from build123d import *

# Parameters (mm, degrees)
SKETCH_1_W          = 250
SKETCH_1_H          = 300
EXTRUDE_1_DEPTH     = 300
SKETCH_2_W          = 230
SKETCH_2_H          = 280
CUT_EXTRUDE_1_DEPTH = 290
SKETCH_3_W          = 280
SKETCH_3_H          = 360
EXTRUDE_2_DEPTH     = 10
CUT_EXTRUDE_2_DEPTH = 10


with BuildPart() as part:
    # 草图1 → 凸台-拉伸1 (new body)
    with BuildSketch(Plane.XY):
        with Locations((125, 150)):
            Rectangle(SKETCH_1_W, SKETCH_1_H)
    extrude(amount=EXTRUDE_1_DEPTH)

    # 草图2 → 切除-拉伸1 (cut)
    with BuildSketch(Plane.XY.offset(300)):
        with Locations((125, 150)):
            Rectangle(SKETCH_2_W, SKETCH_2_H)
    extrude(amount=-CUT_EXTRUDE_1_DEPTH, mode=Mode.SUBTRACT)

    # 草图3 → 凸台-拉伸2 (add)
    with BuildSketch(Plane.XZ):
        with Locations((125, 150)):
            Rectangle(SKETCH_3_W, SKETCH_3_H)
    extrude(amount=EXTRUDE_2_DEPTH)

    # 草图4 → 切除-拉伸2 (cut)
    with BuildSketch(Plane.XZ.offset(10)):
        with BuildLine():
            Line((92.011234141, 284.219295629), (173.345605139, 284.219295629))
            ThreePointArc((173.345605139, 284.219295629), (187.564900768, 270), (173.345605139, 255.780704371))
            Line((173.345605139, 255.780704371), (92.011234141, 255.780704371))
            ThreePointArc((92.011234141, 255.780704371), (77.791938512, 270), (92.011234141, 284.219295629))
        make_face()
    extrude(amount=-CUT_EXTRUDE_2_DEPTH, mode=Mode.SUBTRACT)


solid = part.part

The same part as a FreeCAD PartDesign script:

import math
import FreeCAD as App
import Part
import Sketcher

V = App.Vector
Q = App.Units.Quantity

doc = App.newDocument("Part")
body = doc.addObject("PartDesign::Body", "Body")

# Sketch on XY plane
sketch1 = body.newObject("Sketcher::SketchObject", "Sketch")
sketch1.AttachmentSupport = (doc.getObject("XY_Plane"), [""])
sketch1.MapMode = "FlatFace"
sketch1.addGeometry([
    Part.LineSegment(V(0, 300, 0), V(0, 0, 0)),
    Part.LineSegment(V(0, 0, 0), V(250, 0, 0)),
    Part.LineSegment(V(250, 0, 0), V(250, 300, 0)),
    Part.LineSegment(V(250, 300, 0), V(0, 300, 0)),
], False)
sketch1.addConstraint([
    Sketcher.Constraint("Coincident", 0, 2, 1, 1),
    Sketcher.Constraint("Coincident", 1, 2, 2, 1),
    Sketcher.Constraint("Coincident", 2, 2, 3, 1),
    Sketcher.Constraint("Coincident", 3, 2, 0, 1),
    Sketcher.Constraint("Vertical", 0),
    Sketcher.Constraint("Horizontal", 1),
    Sketcher.Constraint("Vertical", 2),
    Sketcher.Constraint("Horizontal", 3),
    Sketcher.Constraint("Coincident", 0, 2, -1, 1),
    Sketcher.Constraint("DistanceX", 1, 1, 1, 2, Q("250 mm")),
    Sketcher.Constraint("DistanceY", 0, 2, 0, 1, Q("300 mm")),
])
pad1 = body.newObject("PartDesign::Pad", "Pad")
pad1.Profile = sketch1
pad1.Length = 300

# Sketch on XY plane
sketch2 = body.newObject("Sketcher::SketchObject", "Sketch001")
sketch2.AttachmentSupport = (doc.getObject("XY_Plane"), [""])
sketch2.MapMode = "FlatFace"
sketch2.AttachmentOffset = App.Placement(V(0, 0, 300), App.Rotation())
sketch2.addGeometry([
    Part.LineSegment(V(10, 290, 0), V(10, 10, 0)),
    Part.LineSegment(V(10, 10, 0), V(240, 10, 0)),
    Part.LineSegment(V(240, 10, 0), V(240, 290, 0)),
    Part.LineSegment(V(240, 290, 0), V(10, 290, 0)),
], False)
sketch2.addConstraint([
    Sketcher.Constraint("Coincident", 0, 2, 1, 1),
    Sketcher.Constraint("Coincident", 1, 2, 2, 1),
    Sketcher.Constraint("Coincident", 2, 2, 3, 1),
    Sketcher.Constraint("Coincident", 3, 2, 0, 1),
    Sketcher.Constraint("Vertical", 0),
    Sketcher.Constraint("Horizontal", 1),
    Sketcher.Constraint("Vertical", 2),
    Sketcher.Constraint("Horizontal", 3),
    Sketcher.Constraint("DistanceX", 1, 1, 1, 2, Q("230 mm")),
    Sketcher.Constraint("DistanceY", 0, 2, 0, 1, Q("280 mm")),
    Sketcher.Constraint("DistanceX", -1, 1, 0, 2, Q("10 mm")),
    Sketcher.Constraint("DistanceY", -1, 1, 0, 2, Q("10 mm")),
])
pocket1 = body.newObject("PartDesign::Pocket", "Pocket")
pocket1.Profile = sketch2
pocket1.Length = 290

# Sketch on XZ plane
sketch3 = body.newObject("Sketcher::SketchObject", "Sketch002")
sketch3.AttachmentSupport = (doc.getObject("XZ_Plane"), [""])
sketch3.MapMode = "FlatFace"
sketch3.addGeometry([
    Part.LineSegment(V(-15, 330, 0), V(-15, -30, 0)),
    Part.LineSegment(V(-15, -30, 0), V(265, -30, 0)),
    Part.LineSegment(V(265, -30, 0), V(265, 330, 0)),
    Part.LineSegment(V(265, 330, 0), V(-15, 330, 0)),
], False)
sketch3.addConstraint([
    Sketcher.Constraint("Coincident", 0, 2, 1, 1),
    Sketcher.Constraint("Coincident", 1, 2, 2, 1),
    Sketcher.Constraint("Coincident", 2, 2, 3, 1),
    Sketcher.Constraint("Coincident", 3, 2, 0, 1),
    Sketcher.Constraint("Vertical", 0),
    Sketcher.Constraint("Horizontal", 1),
    Sketcher.Constraint("Vertical", 2),
    Sketcher.Constraint("Horizontal", 3),
    Sketcher.Constraint("DistanceX", 1, 1, 1, 2, Q("280 mm")),
    Sketcher.Constraint("DistanceY", 0, 2, 0, 1, Q("360 mm")),
    Sketcher.Constraint("DistanceX", 0, 2, -1, 1, Q("15 mm")),
    Sketcher.Constraint("DistanceY", 0, 2, -1, 1, Q("30 mm")),
])
pad2 = body.newObject("PartDesign::Pad", "Pad001")
pad2.Profile = sketch3
pad2.Length = 10

# Sketch on XZ plane
sketch4 = body.newObject("Sketcher::SketchObject", "Sketch003")
sketch4.AttachmentSupport = (doc.getObject("XZ_Plane"), [""])
sketch4.MapMode = "FlatFace"
sketch4.AttachmentOffset = App.Placement(V(0, 0, 10), App.Rotation())
sketch4.addGeometry([
    Part.LineSegment(V(173, 284, 0), V(92, 284, 0)),
    Part.ArcOfCircle(Part.Circle(V(92, 270, 0), V(0, 0, 1), 14), math.radians(90), math.radians(270)),
    Part.LineSegment(V(92, 256, 0), V(173, 256, 0)),
    Part.ArcOfCircle(Part.Circle(V(173, 270, 0), V(0, 0, 1), 14), math.radians(-90), math.radians(90)),
], False)
sketch4.addConstraint([
    Sketcher.Constraint("Tangent", 0, 2, 1, 1),
    Sketcher.Constraint("Tangent", 1, 2, 2, 1),
    Sketcher.Constraint("Tangent", 2, 2, 3, 1),
    Sketcher.Constraint("Tangent", 3, 2, 0, 1),
    Sketcher.Constraint("Horizontal", 0),
    Sketcher.Constraint("Horizontal", 2),
    Sketcher.Constraint("DistanceY", -1, 1, 1, 3, Q("270 mm")),
    Sketcher.Constraint("Radius", 1, Q("14.219296 mm")),
    Sketcher.Constraint("DistanceX", 0, 2, 0, 1, Q("81.334371 mm")),
    Sketcher.Constraint("DistanceX", -1, 1, 1, 3, Q("92.011234 mm")),
])
pocket2 = body.newObject("PartDesign::Pocket", "Pocket001")
pocket2.Profile = sketch4
pocket2.Length = 10

doc.recompute()
